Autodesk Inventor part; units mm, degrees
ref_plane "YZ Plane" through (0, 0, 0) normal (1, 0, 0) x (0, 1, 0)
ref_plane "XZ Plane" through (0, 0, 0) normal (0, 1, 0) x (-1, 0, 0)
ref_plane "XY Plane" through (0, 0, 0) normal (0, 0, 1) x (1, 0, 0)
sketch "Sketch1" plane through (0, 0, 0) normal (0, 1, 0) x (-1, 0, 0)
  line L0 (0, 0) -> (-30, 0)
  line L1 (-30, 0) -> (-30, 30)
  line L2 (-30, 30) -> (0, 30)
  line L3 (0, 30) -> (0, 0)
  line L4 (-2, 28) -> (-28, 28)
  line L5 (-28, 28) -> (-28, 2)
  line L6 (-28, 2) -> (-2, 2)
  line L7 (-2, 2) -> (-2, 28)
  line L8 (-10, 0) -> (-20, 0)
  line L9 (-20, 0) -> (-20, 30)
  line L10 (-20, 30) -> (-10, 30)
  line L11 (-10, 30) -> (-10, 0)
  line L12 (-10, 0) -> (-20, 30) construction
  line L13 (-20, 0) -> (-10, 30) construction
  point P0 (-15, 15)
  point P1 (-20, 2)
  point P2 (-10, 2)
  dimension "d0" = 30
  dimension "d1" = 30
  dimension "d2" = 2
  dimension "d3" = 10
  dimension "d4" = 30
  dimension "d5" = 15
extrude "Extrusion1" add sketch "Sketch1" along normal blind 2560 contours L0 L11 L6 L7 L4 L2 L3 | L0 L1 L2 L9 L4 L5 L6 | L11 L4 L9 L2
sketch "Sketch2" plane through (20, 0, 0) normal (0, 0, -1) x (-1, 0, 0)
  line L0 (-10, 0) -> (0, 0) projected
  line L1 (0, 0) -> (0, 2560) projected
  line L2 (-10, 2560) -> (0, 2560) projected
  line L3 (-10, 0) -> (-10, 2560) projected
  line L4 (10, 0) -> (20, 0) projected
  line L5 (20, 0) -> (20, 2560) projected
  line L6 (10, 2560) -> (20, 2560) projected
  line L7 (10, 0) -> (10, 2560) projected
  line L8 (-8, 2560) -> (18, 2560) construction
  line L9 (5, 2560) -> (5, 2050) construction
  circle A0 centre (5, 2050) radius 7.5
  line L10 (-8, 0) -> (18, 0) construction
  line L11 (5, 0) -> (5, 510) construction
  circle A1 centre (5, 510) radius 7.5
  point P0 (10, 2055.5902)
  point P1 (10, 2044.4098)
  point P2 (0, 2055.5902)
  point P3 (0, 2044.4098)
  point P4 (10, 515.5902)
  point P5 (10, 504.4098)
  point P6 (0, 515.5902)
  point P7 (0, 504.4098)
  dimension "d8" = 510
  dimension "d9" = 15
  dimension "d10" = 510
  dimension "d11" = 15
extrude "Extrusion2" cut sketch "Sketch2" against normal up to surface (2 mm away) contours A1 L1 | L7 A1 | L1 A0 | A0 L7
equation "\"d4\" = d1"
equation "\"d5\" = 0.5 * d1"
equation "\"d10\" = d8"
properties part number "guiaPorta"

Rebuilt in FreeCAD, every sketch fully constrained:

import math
import FreeCAD as App
import Part
import Sketcher

V = App.Vector

doc = App.newDocument("Part")
body = doc.addObject("PartDesign::Body", "Body")

sketch1 = body.newObject("Sketcher::SketchObject", "Sketch")
sketch1.AttachmentSupport = (doc.getObject("XZ_Plane"), [""])
sketch1.MapMode = "FlatFace"
sketch1.addGeometry([
    Part.LineSegment(V(10, 0, 0), V(0, 0, 0)),
    Part.LineSegment(V(0, 0, 0), V(0, 30, 0)),
    Part.LineSegment(V(0, 30, 0), V(30, 30, 0)),
    Part.LineSegment(V(30, 30, 0), V(30, 0, 0)),
    Part.LineSegment(V(30, 0, 0), V(20, 0, 0)),
    Part.LineSegment(V(20, 0, 0), V(20, 2, 0)),
    Part.LineSegment(V(20, 2, 0), V(28, 2, 0)),
    Part.LineSegment(V(28, 2, 0), V(28, 28, 0)),
    Part.LineSegment(V(28, 28, 0), V(2, 28, 0)),
    Part.LineSegment(V(2, 28, 0), V(2, 2, 0)),
    Part.LineSegment(V(2, 2, 0), V(10, 2, 0)),
    Part.LineSegment(V(10, 2, 0), V(10, 0, 0)),
], False)
sketch1.addConstraint([
    Sketcher.Constraint("Coincident", 0, 2, 1, 1),
    Sketcher.Constraint("Coincident", 1, 2, 2, 1),
    Sketcher.Constraint("Coincident", 2, 2, 3, 1),
    Sketcher.Constraint("Coincident", 3, 2, 4, 1),
    Sketcher.Constraint("Coincident", 4, 2, 5, 1),
    Sketcher.Constraint("Coincident", 5, 2, 6, 1),
    Sketcher.Constraint("Coincident", 6, 2, 7, 1),
    Sketcher.Constraint("Coincident", 7, 2, 8, 1),
    Sketcher.Constraint("Coincident", 8, 2, 9, 1),
    Sketcher.Constraint("Coincident", 9, 2, 10, 1),
    Sketcher.Constraint("Coincident", 10, 2, 11, 1),
    Sketcher.Constraint("Coincident", 11, 2, 0, 1),
    Sketcher.Constraint("Horizontal", 0),
    Sketcher.Constraint("Vertical", 1),
    Sketcher.Constraint("Horizontal", 2),
    Sketcher.Constraint("Vertical", 3),
    Sketcher.Constraint("Horizontal", 4),
    Sketcher.Constraint("Vertical", 5),
    Sketcher.Constraint("Horizontal", 6),
    Sketcher.Constraint("Vertical", 7),
    Sketcher.Constraint("Horizontal", 8),
    Sketcher.Constraint("Vertical", 9),
    Sketcher.Constraint("Horizontal", 10),
    Sketcher.Constraint("Vertical", 11),
    Sketcher.Constraint("Coincident", 0, 2, -1, 1),
    Sketcher.Constraint("PointOnObject", 3, 2, -1),
    Sketcher.Constraint("Horizontal", 6, 2, 9, 2),
    Sketcher.Constraint("Equal", 0, 4),
    Sketcher.Constraint("Equal", 6, 10),
    Sketcher.Constraint("Equal", 2, 1),
    Sketcher.Constraint("Equal", 8, 7),
    Sketcher.Constraint("DistanceX", 0, 2, 0, 1, 10.0),
    Sketcher.Constraint("DistanceX", 2, 1, 2, 2, 30.0),
    Sketcher.Constraint("DistanceY", 5, 1, 5, 2, 2.0),
    Sketcher.Constraint("DistanceX", -1, 1, 8, 2, 2.0),
])
pad1 = body.newObject("PartDesign::Pad", "Pad")
pad1.Profile = sketch1
pad1.Length = 2560
pad1.Reversed = True

sketch2 = body.newObject("Sketcher::SketchObject", "Sketch001")
sketch2.AttachmentSupport = (doc.getObject("XY_Plane"), [""])
sketch2.MapMode = "FlatFace"
sketch2.addGeometry([
    Part.ArcOfCircle(Part.Circle(V(15, 510, 0), V(0, 0, 1), 8), math.radians(-48), math.radians(48)),
    Part.LineSegment(V(20, 504, 0), V(20, 516, 0)),
    Part.LineSegment(V(10, 516, 0), V(10, 504, 0)),
    Part.ArcOfCircle(Part.Circle(V(15, 510, 0), V(0, 0, 1), 8), math.radians(132), math.radians(228)),
    Part.LineSegment(V(20, 2044, 0), V(20, 2056, 0)),
    Part.ArcOfCircle(Part.Circle(V(15, 2050, 0), V(0, 0, 1), 8), math.radians(-48), math.radians(48)),
    Part.ArcOfCircle(Part.Circle(V(15, 2050, 0), V(0, 0, 1), 8), math.radians(132), math.radians(228)),
    Part.LineSegment(V(10, 2056, 0), V(10, 2044, 0)),
], False)
sketch2.addConstraint([
    Sketcher.Constraint("Coincident", 0, 1, 1, 1),
    Sketcher.Constraint("Coincident", 1, 2, 0, 2),
    Sketcher.Constraint("Coincident", 2, 1, 3, 1),
    Sketcher.Constraint("Coincident", 3, 2, 2, 2),
    Sketcher.Constraint("Coincident", 4, 1, 5, 1),
    Sketcher.Constraint("Coincident", 5, 2, 4, 2),
    Sketcher.Constraint("Coincident", 6, 1, 7, 1),
    Sketcher.Constraint("Coincident", 7, 2, 6, 2),
    Sketcher.Constraint("Vertical", 1),
    Sketcher.Constraint("Vertical", 2),
    Sketcher.Constraint("Vertical", 4),
    Sketcher.Constraint("Vertical", 7),
    Sketcher.Constraint("Coincident", 3, 3, 0, 3),
    Sketcher.Constraint("Coincident", 6, 3, 5, 3),
    Sketcher.Constraint("Equal", 0, 3),
    Sketcher.Constraint("Equal", 3, 5),
    Sketcher.Constraint("Equal", 5, 6),
    Sketcher.Constraint("Horizontal", 1, 2, 2, 1),
    Sketcher.Constraint("Horizontal", 5, 2, 6, 1),
    Sketcher.Constraint("Vertical", 3, 3, 5, 3),
    Sketcher.Constraint("Vertical", 1, 2, 4, 1),
    Sketcher.Constraint("Radius", 0, 7.5),
    Sketcher.Constraint("DistanceX", -1, 1, 0, 3, 15.0),
    Sketcher.Constraint("DistanceY", -1, 1, 0, 3, 510.0),
    Sketcher.Constraint("DistanceY", -1, 1, 5, 3, 2050.0),
    Sketcher.Constraint("DistanceX", -1, 1, 0, 1, 20.0),
])
pocket1 = body.newObject("PartDesign::Pocket", "Pocket")
pocket1.Profile = sketch2
pocket1.Length = 2
pocket1.Reversed = True

doc.recompute()
